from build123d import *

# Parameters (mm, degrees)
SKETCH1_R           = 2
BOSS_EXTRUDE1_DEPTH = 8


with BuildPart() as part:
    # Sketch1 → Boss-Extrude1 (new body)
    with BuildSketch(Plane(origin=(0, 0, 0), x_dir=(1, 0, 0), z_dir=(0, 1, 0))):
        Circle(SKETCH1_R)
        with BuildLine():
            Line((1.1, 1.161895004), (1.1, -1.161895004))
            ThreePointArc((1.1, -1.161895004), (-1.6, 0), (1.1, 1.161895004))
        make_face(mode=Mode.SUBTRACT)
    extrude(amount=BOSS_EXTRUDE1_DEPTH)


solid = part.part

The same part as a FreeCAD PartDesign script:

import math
import FreeCAD as App
import Part
import Sketcher
from FreeCAD import Vector

doc = App.newDocument("Part")
body = doc.addObject("PartDesign::Body", "Body")

# Sketch on XZ plane
sketch1 = doc.addObject("Sketcher::SketchObject", "Sketch")
body.addObject(sketch1)
sketch1.AttachmentSupport = (doc.XZ_Plane, [""])
sketch1.MapMode = "FlatFace"
sketch1.addGeometry([
    Part.Circle(Vector(0, 0, 0), Vector(0, 0, 1), 2),
    Part.ArcOfCircle(Part.Circle(Vector(0, 0, 0), Vector(0, 0, 1), 1.6), math.radians(47), math.radians(313)),
    Part.LineSegment(Vector(1.1, -1.2, 0), Vector(1.1, 1.2, 0)),
], False)
sketch1.addConstraint([
    Sketcher.Constraint("Coincident", 1, 1, 2, 2),
    Sketcher.Constraint("Coincident", 2, 1, 1, 2),
    Sketcher.Constraint("Vertical", 2),
    Sketcher.Constraint("Coincident", 0, 3, -1, 1),
    Sketcher.Constraint("Coincident", 1, 3, -1, 1),
    Sketcher.Constraint("Diameter", 0, 4.0),
    Sketcher.Constraint("Radius", 1, 1.6),
    Sketcher.Constraint("DistanceX", -1, 1, 1, 1, 1.1),
])
pad1 = doc.addObject("PartDesign::Pad", "Pad")
body.addObject(pad1)
pad1.Profile = sketch1
pad1.Length = 8
pad1.Reversed = True

doc.recompute()
